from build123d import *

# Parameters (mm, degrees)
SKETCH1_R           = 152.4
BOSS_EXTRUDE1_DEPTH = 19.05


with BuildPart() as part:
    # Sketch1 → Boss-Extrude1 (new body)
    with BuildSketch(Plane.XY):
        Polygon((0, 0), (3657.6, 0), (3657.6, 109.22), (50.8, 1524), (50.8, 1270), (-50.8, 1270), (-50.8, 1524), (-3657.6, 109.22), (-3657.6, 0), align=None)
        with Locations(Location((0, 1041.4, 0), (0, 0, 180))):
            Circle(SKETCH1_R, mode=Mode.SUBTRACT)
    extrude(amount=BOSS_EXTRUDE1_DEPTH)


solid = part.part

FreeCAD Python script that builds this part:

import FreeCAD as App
import Part
import Sketcher
Q = App.Units.Quantity


def add_polygon(sketch, points):
    """Adds a closed chain of lines whose ends are joined by coincident constraints."""
    first, n = sketch.GeometryCount, len(points)
    for a, b in zip(points, points[1:] + points[:1]):
        sketch.addGeometry(Part.LineSegment(App.Vector(*a, 0), App.Vector(*b, 0)), False)
    for i in range(n):
        sketch.addConstraint(Sketcher.Constraint("Coincident", first + i, 2, first + (i + 1) % n, 1))

doc = App.newDocument("Part")
body = doc.addObject("PartDesign::Body", "Body")

# Sketch on XY plane
sketch1 = body.newObject("Sketcher::SketchObject", "Sketch")
sketch1.AttachmentSupport = (doc.getObject("XY_Plane"), [""])
sketch1.MapMode = "FlatFace"
add_polygon(sketch1, [(3658, 0), (3658, 109), (51, 1524), (51, 1270), (-51, 1270), (-51, 1524), (-3658, 109), (-3658, 0)])  # lines 0-7
sketch1.addGeometry(Part.Circle(App.Vector(0, 1041, 0), App.Vector(0, 0, 1), 152), False)  # 8
sketch1.addConstraint([
    Sketcher.Constraint("Vertical", 0),
    Sketcher.Constraint("Vertical", 2),
    Sketcher.Constraint("Horizontal", 3),
    Sketcher.Constraint("Vertical", 4),
    Sketcher.Constraint("Vertical", 6),
    Sketcher.Constraint("Horizontal", 7),
    Sketcher.Constraint("Symmetric", 6, 2, 7, 2, -1, 1),
    Sketcher.Constraint("Symmetric", 1, 2, 4, 2, -2),
    Sketcher.Constraint("PointOnObject", 8, 3, -2),
    Sketcher.Constraint("Horizontal", 0, 2, 5, 2),
    Sketcher.Constraint("Diameter", 8, Q("12 in")),
    Sketcher.Constraint("DistanceX", 3, 2, 3, 1, Q("4 in")),
    Sketcher.Constraint("DistanceX", 7, 1, 7, 2, Q("288 in")),
    Sketcher.Constraint("DistanceY", 2, 2, 2, 1, Q("10 in")),
    Sketcher.Constraint("DistanceY", 0, 1, 0, 2, Q("4.3 in")),
    Sketcher.Constraint("DistanceY", -1, 1, 8, 3, Q("41 in")),
    Sketcher.Constraint("DistanceY", -1, 1, 1, 2, Q("60 in")),
])
pad1 = body.newObject("PartDesign::Pad", "Pad")
pad1.Profile = sketch1
pad1.Length = Q("0.75 in")

doc.recompute()
